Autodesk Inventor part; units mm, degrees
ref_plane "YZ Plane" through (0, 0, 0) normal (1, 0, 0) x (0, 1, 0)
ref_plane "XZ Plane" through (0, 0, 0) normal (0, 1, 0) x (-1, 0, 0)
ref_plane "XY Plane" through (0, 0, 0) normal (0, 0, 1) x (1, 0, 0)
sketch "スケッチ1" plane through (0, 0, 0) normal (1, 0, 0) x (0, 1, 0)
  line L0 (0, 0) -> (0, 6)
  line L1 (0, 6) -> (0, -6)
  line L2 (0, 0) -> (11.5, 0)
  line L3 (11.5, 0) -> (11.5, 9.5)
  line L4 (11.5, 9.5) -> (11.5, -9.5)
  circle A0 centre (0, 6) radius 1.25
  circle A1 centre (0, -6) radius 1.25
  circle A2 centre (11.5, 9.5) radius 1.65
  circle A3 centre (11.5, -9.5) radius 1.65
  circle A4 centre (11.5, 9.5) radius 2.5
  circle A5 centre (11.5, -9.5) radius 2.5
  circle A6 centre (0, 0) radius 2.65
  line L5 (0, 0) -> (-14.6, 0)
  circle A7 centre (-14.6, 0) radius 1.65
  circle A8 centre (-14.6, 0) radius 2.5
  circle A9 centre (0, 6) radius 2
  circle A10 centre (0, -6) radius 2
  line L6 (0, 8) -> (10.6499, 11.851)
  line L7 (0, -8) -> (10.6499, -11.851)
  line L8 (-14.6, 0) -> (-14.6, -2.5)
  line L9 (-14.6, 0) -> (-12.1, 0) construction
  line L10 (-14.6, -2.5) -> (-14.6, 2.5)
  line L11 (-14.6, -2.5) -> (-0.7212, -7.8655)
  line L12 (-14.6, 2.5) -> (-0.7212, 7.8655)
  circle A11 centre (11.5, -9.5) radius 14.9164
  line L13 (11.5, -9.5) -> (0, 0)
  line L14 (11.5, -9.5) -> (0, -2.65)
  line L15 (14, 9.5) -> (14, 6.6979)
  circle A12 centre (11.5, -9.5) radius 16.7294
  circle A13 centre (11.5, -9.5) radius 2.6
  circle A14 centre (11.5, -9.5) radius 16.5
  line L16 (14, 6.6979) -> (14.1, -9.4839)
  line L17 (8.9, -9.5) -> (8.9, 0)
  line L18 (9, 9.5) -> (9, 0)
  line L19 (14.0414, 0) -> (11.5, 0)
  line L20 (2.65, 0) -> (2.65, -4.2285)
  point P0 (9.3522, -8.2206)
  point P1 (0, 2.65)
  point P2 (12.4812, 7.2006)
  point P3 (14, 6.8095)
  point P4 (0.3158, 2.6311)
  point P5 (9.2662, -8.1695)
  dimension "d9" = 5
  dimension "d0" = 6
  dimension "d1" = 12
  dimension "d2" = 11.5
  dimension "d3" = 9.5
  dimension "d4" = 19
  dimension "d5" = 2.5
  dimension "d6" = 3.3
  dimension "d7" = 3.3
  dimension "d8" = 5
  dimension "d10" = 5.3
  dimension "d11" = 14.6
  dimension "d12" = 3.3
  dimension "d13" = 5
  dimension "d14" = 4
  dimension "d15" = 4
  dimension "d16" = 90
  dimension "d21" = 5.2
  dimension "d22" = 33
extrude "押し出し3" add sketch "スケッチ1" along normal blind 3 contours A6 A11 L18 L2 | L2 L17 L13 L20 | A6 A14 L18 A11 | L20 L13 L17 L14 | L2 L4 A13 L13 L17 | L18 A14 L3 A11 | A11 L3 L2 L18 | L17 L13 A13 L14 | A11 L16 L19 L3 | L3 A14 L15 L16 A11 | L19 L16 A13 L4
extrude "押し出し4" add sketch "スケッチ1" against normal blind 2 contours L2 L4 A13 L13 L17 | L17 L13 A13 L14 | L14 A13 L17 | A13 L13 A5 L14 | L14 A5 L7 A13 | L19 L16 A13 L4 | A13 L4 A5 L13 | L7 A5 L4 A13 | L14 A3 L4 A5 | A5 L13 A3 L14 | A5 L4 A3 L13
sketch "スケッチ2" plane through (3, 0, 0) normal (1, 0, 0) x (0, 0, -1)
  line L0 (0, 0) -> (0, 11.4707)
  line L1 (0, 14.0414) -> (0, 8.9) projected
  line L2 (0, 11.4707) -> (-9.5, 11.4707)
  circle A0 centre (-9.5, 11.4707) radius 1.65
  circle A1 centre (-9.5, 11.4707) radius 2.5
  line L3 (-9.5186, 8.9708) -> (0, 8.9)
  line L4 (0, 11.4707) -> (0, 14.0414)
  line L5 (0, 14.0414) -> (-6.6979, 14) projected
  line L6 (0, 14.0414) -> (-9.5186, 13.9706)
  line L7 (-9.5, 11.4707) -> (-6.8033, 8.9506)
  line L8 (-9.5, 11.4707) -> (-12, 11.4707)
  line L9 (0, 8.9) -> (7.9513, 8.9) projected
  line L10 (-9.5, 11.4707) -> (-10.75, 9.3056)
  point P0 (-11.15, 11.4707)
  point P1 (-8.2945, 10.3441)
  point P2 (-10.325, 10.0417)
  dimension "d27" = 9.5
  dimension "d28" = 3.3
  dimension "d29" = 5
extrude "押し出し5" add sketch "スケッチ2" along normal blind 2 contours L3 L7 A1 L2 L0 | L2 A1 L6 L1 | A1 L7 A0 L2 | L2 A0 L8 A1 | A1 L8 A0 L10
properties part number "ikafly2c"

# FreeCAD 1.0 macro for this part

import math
import FreeCAD as App
import Part
import Sketcher

V = App.Vector
Q = App.Units.Quantity

doc = App.newDocument("Part")
body = doc.addObject("PartDesign::Body", "Body")

# Sketch on YZ plane
sketch1 = body.newObject("Sketcher::SketchObject", "Sketch")
sketch1.AttachmentSupport = (doc.getObject("YZ_Plane"), [""])
sketch1.MapMode = "FlatFace"
sketch1.addGeometry(Part.LineSegment(V(2.65, 0, 0), V(2.65, -4.23, 0)), False)
sketch1.addGeometry(Part.LineSegment(V(2.65, -4.23, 0), V(9.27, -8.17, 0)), False)
sketch1.addGeometry(Part.ArcOfCircle(Part.Circle(V(11.5, -9.5, 0), V(0, 0, 1), 2.6), math.radians(0), math.radians(149)), False)
sketch1.addGeometry(Part.LineSegment(V(14.1, -9.48, 0), V(14, 6.7, 0)), False)
sketch1.addGeometry(Part.LineSegment(V(14, 6.7, 0), V(14, 6.81, 0)), False)
sketch1.addGeometry(Part.ArcOfCircle(Part.Circle(V(11.5, -9.5, 0), V(0, 0, 1), 16.5), math.radians(81), math.radians(133)), False)
sketch1.addGeometry(Part.ArcOfCircle(Part.Circle(V(0, 0, 0), V(0, 0, 1), 2.65), math.radians(0), math.radians(83)), False)
sketch1.addConstraint(Sketcher.Constraint("Coincident", 0, 2, 1, 1))
sketch1.addConstraint(Sketcher.Constraint("Coincident", 1, 2, 2, 2))
sketch1.addConstraint(Sketcher.Constraint("Tangent", 2, 1, 3, 1))
sketch1.addConstraint(Sketcher.Constraint("Coincident", 3, 2, 4, 1))
sketch1.addConstraint(Sketcher.Constraint("Coincident", 4, 2, 5, 1))
sketch1.addConstraint(Sketcher.Constraint("Coincident", 5, 2, 6, 2))
sketch1.addConstraint(Sketcher.Constraint("Tangent", 6, 1, 0, 1))
sketch1.addConstraint(Sketcher.Constraint("Vertical", 0))
sketch1.addConstraint(Sketcher.Constraint("Vertical", 4))
sketch1.addConstraint(Sketcher.Constraint("Coincident", 6, 3, -1, 1))
sketch1.addConstraint(Sketcher.Constraint("Coincident", 5, 3, 2, 3))
sketch1.addConstraint(Sketcher.Constraint("Radius", 2, Q("2.6 mm")))
sketch1.addConstraint(Sketcher.Constraint("Radius", 5, Q("16.5 mm")))
sketch1.addConstraint(Sketcher.Constraint("Radius", 6, Q("2.65 mm")))
sketch1.addConstraint(Sketcher.Constraint("DistanceX", -1, 1, 2, 3, Q("11.5 mm")))
sketch1.addConstraint(Sketcher.Constraint("DistanceY", 2, 3, -1, 1, Q("9.5 mm")))
sketch1.addConstraint(Sketcher.Constraint("DistanceX", 2, 3, 3, 2, Q("2.5 mm")))
sketch1.addConstraint(Sketcher.Constraint("Angle", 1, Q("-30.78 deg")))
sketch1.addConstraint(Sketcher.Constraint("Distance", 1, Q("7.701 mm")))
sketch1.addConstraint(Sketcher.Constraint("Distance", 3, Q("16.182 mm")))
pad1 = body.newObject("PartDesign::Pad", "Pad")
pad1.Profile = sketch1
pad1.Length = 3

# Sketch on YZ plane
sketch2 = body.newObject("Sketcher::SketchObject", "Sketch001")
sketch2.AttachmentSupport = (doc.getObject("YZ_Plane"), [""])
sketch2.MapMode = "FlatFace"
sketch2.addGeometry(Part.LineSegment(V(8.9, 0, 0), V(8.9, -9.5, 0)), False)
sketch2.addGeometry(Part.ArcOfCircle(Part.Circle(V(11.5, -9.5, 0), V(0, 0, 1), 2.6), math.radians(180), math.radians(360)), False)
sketch2.addGeometry(Part.LineSegment(V(14.1, -9.5, 0), V(14, 0, 0)), False)
sketch2.addGeometry(Part.LineSegment(V(14, 0, 0), V(8.9, 0, 0)), False)
sketch2.addGeometry(Part.Circle(V(11.5, -9.5, 0), V(0, 0, 1), 1.6), False)
sketch2.addConstraint(Sketcher.Constraint("Tangent", 0, 2, 1, 1))
sketch2.addConstraint(Sketcher.Constraint("Tangent", 1, 2, 2, 1))
sketch2.addConstraint(Sketcher.Constraint("Coincident", 2, 2, 3, 1))
sketch2.addConstraint(Sketcher.Constraint("Coincident", 3, 2, 0, 1))
sketch2.addConstraint(Sketcher.Constraint("Vertical", 0))
sketch2.addConstraint(Sketcher.Constraint("Horizontal", 3))
sketch2.addConstraint(Sketcher.Constraint("Coincident", 4, 3, 1, 3))
sketch2.addConstraint(Sketcher.Constraint("PointOnObject", 2, 2, -1))
sketch2.addConstraint(Sketcher.Constraint("Diameter", 4, Q("3.3 mm")))
sketch2.addConstraint(Sketcher.Constraint("Radius", 1, Q("2.6 mm")))
sketch2.addConstraint(Sketcher.Constraint("DistanceY", 0, 2, 0, 1, Q("9.5 mm")))
sketch2.addConstraint(Sketcher.Constraint("DistanceX", -1, 1, 1, 3, Q("11.5 mm")))
sketch2.addConstraint(Sketcher.Constraint("Distance", 2, Q("9.484 mm")))
pad2 = body.newObject("PartDesign::Pad", "Pad001")
pad2.Profile = sketch2
pad2.Length = 2
pad2.Reversed = True

# Sketch on YZ plane
sketch3 = body.newObject("Sketcher::SketchObject", "Sketch002")
sketch3.AttachmentSupport = (doc.getObject("YZ_Plane"), [""])
sketch3.MapMode = "FlatFace"
sketch3.AttachmentOffset = App.Placement(V(0, 0, 3), App.Rotation())
sketch3.addGeometry(Part.LineSegment(V(9, 6.8, 0), V(8.9, 0, 0)), False)
sketch3.addGeometry(Part.LineSegment(V(8.9, 0, 0), V(14, 0, 0)), False)
sketch3.addGeometry(Part.LineSegment(V(14, 0, 0), V(14, 9.5, 0)), False)
sketch3.addGeometry(Part.ArcOfCircle(Part.Circle(V(11.5, 9.5, 0), V(0, 0, 1), 2.5), math.radians(0), math.radians(150)), False)
sketch3.addGeometry(Part.LineSegment(V(9.3, 10.8, 0), V(10, 10.3, 0)), False)
sketch3.addGeometry(Part.ArcOfCircle(Part.Circle(V(11.5, 9.5, 0), V(0, 0, 1), 1.6), math.radians(-133), math.radians(150)), False)
sketch3.addGeometry(Part.LineSegment(V(10.3, 8.3, 0), V(9, 6.8, 0)), False)
sketch3.addConstraint(Sketcher.Constraint("Coincident", 0, 2, 1, 1))
sketch3.addConstraint(Sketcher.Constraint("Coincident", 1, 2, 2, 1))
sketch3.addConstraint(Sketcher.Constraint("Tangent", 2, 2, 3, 1))
sketch3.addConstraint(Sketcher.Constraint("Coincident", 3, 2, 4, 1))
sketch3.addConstraint(Sketcher.Constraint("Coincident", 4, 2, 5, 2))
sketch3.addConstraint(Sketcher.Constraint("Coincident", 5, 1, 6, 1))
sketch3.addConstraint(Sketcher.Constraint("Coincident", 6, 2, 0, 1))
sketch3.addConstraint(Sketcher.Constraint("Horizontal", 1))
sketch3.addConstraint(Sketcher.Constraint("Coincident", 5, 3, 3, 3))
sketch3.addConstraint(Sketcher.Constraint("PointOnObject", 0, 2, -1))
sketch3.addConstraint(Sketcher.Constraint("Radius", 3, Q("2.5 mm")))
sketch3.addConstraint(Sketcher.Constraint("Radius", 5, Q("1.65 mm")))
sketch3.addConstraint(Sketcher.Constraint("DistanceY", -1, 1, 3, 3, Q("9.5 mm")))
sketch3.addConstraint(Sketcher.Constraint("Angle", 4, Q("-29.9996 deg")))
sketch3.addConstraint(Sketcher.Constraint("DistanceX", -1, 1, 0, 2, Q("8.9 mm")))
sketch3.addConstraint(Sketcher.Constraint("Angle", 6, Q("-133.0612 deg")))
sketch3.addConstraint(Sketcher.Constraint("DistanceY", -1, 1, 3, 2, Q("10.75 mm")))
sketch3.addConstraint(Sketcher.Constraint("DistanceX", 6, 2, 3, 3, Q("2.52 mm")))
sketch3.addConstraint(Sketcher.Constraint("Distance", 6, Q("2.041 mm")))
sketch3.addConstraint(Sketcher.Constraint("DistanceX", 1, 1, 1, 2, Q("5.1414 mm")))
sketch3.addConstraint(Sketcher.Constraint("DistanceX", -1, 1, 5, 1, Q("10.344 mm")))
pad3 = body.newObject("PartDesign::Pad", "Pad002")
pad3.Profile = sketch3
pad3.Length = 2

doc.recompute()
